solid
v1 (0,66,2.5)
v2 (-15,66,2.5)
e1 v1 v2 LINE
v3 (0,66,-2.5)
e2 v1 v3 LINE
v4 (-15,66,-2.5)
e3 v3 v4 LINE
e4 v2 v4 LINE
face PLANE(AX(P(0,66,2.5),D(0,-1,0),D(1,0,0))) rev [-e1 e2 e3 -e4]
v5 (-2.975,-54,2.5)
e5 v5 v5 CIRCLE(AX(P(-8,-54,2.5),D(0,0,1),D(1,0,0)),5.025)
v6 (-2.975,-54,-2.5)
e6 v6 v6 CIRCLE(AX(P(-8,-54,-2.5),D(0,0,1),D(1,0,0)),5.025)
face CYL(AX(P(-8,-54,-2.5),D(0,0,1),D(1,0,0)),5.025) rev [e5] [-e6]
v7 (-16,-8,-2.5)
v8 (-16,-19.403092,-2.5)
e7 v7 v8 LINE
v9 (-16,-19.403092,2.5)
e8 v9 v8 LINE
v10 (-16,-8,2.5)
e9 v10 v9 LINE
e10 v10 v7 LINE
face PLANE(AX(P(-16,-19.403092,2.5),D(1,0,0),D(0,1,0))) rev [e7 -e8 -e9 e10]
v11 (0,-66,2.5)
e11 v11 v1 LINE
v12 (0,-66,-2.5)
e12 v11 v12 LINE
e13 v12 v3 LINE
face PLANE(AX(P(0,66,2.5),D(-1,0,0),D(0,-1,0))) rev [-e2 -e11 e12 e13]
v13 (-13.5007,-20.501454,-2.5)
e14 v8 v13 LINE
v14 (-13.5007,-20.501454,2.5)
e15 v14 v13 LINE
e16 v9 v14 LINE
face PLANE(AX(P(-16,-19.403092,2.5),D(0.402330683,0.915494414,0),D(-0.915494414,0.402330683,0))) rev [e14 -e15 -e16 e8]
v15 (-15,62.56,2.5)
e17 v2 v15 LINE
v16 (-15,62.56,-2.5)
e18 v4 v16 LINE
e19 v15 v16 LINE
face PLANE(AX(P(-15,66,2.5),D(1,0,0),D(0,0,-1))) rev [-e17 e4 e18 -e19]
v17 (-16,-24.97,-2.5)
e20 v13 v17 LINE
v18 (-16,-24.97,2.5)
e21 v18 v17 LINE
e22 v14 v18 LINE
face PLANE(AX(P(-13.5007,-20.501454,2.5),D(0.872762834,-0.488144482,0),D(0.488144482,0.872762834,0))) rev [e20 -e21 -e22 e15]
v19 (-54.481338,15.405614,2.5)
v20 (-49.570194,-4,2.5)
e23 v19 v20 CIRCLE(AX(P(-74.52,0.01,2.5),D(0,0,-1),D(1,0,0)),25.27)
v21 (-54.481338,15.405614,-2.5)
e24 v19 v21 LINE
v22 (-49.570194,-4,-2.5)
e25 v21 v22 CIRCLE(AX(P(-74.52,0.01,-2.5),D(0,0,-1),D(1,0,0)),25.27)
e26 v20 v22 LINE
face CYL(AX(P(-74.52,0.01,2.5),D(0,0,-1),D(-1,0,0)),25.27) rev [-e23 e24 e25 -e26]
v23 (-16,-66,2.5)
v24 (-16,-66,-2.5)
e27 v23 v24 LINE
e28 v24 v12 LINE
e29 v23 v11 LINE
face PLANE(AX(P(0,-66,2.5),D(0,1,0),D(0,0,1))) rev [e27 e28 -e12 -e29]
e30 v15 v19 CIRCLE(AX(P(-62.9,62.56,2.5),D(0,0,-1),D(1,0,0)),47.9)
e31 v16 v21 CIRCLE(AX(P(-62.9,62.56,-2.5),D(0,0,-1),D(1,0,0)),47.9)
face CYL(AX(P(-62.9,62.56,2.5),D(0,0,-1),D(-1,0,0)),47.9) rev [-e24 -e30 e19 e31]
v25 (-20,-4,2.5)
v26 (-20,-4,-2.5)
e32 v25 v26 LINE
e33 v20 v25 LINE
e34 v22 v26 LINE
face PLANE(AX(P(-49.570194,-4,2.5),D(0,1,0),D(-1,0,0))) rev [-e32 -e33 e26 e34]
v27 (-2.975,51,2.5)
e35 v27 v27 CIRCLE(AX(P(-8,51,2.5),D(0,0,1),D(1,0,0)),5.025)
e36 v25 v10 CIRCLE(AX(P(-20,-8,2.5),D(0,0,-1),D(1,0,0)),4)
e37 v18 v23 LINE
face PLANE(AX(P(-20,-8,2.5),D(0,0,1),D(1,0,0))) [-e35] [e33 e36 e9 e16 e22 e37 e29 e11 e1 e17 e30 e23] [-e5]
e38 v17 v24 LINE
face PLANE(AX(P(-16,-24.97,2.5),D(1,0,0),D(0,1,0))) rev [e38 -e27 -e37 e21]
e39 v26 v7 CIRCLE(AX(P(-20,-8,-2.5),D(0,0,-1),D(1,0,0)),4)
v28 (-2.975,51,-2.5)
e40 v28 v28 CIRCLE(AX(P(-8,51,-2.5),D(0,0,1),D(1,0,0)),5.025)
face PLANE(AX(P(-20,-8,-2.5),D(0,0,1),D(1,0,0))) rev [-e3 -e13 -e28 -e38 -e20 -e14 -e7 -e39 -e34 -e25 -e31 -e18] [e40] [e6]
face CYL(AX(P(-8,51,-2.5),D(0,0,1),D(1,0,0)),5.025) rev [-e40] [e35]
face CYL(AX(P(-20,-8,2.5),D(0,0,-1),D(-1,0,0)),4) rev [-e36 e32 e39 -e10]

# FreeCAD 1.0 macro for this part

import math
import FreeCAD as App
import Part
import Sketcher
Q = App.Units.Quantity

doc = App.newDocument("Part")
body = doc.addObject("PartDesign::Body", "Body")

sketch1 = doc.addObject("Sketcher::SketchObject", "Sketch")
body.addObject(sketch1)
sketch1.AttachmentSupport = (doc.XY_Plane, [""])
sketch1.MapMode = "FlatFace"
sketch1.addGeometry([
    Part.LineSegment(App.Vector(-49.570194, -4, 0), App.Vector(-20, -4, 0)),
    Part.ArcOfCircle(Part.Circle(App.Vector(-20, -8, 0), App.Vector(0, 0, 1), 4), math.radians(0), math.radians(90)),
    Part.LineSegment(App.Vector(-16, -8, 0), App.Vector(-16, -19.403092, 0)),
    Part.LineSegment(App.Vector(-16, -19.403092, 0), App.Vector(-13.5007, -20.501454, 0)),
    Part.LineSegment(App.Vector(-13.5007, -20.501454, 0), App.Vector(-16, -24.97, 0)),
    Part.LineSegment(App.Vector(-16, -24.97, 0), App.Vector(-16, -66, 0)),
    Part.LineSegment(App.Vector(-16, -66, 0), App.Vector(0, -66, 0)),
    Part.LineSegment(App.Vector(0, -66, 0), App.Vector(0, 66, 0)),
    Part.LineSegment(App.Vector(0, 66, 0), App.Vector(-15, 66, 0)),
    Part.LineSegment(App.Vector(-15, 66, 0), App.Vector(-15, 62.56, 0)),
    Part.ArcOfCircle(Part.Circle(App.Vector(-62.9, 62.56, 0), App.Vector(0, 0, 1), 47.9), math.radians(-79.877406), math.radians(0)),
    Part.ArcOfCircle(Part.Circle(App.Vector(-74.52, 0.01, 0), App.Vector(0, 0, 1), 25.27), math.radians(-9.130646), math.radians(37.534911)),
], False)
sketch1.addConstraint([
    Sketcher.Constraint("Tangent", 0, 2, 1, 2),
    Sketcher.Constraint("Tangent", 1, 1, 2, 1),
    Sketcher.Constraint("Coincident", 2, 2, 3, 1),
    Sketcher.Constraint("Coincident", 3, 2, 4, 1),
    Sketcher.Constraint("Coincident", 4, 2, 5, 1),
    Sketcher.Constraint("Coincident", 5, 2, 6, 1),
    Sketcher.Constraint("Coincident", 6, 2, 7, 1),
    Sketcher.Constraint("Coincident", 7, 2, 8, 1),
    Sketcher.Constraint("Coincident", 8, 2, 9, 1),
    Sketcher.Constraint("Tangent", 9, 2, 10, 2),
    Sketcher.Constraint("Coincident", 10, 1, 11, 2),
    Sketcher.Constraint("Coincident", 11, 1, 0, 1),
    Sketcher.Constraint("Horizontal", 0),
    Sketcher.Constraint("Vertical", 2),
    Sketcher.Constraint("Vertical", 5),
    Sketcher.Constraint("Horizontal", 6),
    Sketcher.Constraint("Vertical", 7),
    Sketcher.Constraint("Horizontal", 8),
    Sketcher.Constraint("Vertical", 9),
    Sketcher.Constraint("Symmetric", 6, 2, 7, 2, -1, 1),
    Sketcher.Constraint("Vertical", 2, 2, 4, 2),
    Sketcher.Constraint("Radius", 1, Q("4 mm")),
    Sketcher.Constraint("Radius", 10, Q("47.9 mm")),
    Sketcher.Constraint("DistanceX", 6, 1, 6, 2, Q("16 mm")),
    Sketcher.Constraint("DistanceX", 8, 2, 8, 1, Q("15 mm")),
    Sketcher.Constraint("DistanceY", 7, 1, 7, 2, Q("132 mm")),
    Sketcher.Constraint("Radius", 11, Q("25.27 mm")),
    Sketcher.Constraint("DistanceY", 1, 3, -1, 1, Q("8 mm")),
    Sketcher.Constraint("DistanceY", 5, 2, 5, 1, Q("41.03 mm")),
    Sketcher.Constraint("DistanceY", 9, 2, 9, 1, Q("3.44 mm")),
    Sketcher.Constraint("Distance", 3, Q("2.73 mm")),
    Sketcher.Constraint("Distance", 4, Q("5.12 mm")),
    Sketcher.Constraint("DistanceX", 11, 3, -1, 1, Q("74.52 mm")),
    Sketcher.Constraint("DistanceY", -1, 1, 11, 3, Q("0.01 mm")),
    Sketcher.Constraint("DistanceY", 2, 2, 2, 1, Q("11.403092 mm")),
])
pad1 = doc.addObject("PartDesign::Pad", "Pad")
body.addObject(pad1)
pad1.Profile = sketch1
pad1.Length = 5
pad1.Midplane = True

sketch2 = doc.addObject("Sketcher::SketchObject", "Sketch001")
body.addObject(sketch2)
sketch2.AttachmentSupport = (doc.XY_Plane, [""])
sketch2.MapMode = "FlatFace"
sketch2.AttachmentOffset = App.Placement(App.Vector(0, 0, 2.5), App.Rotation())
sketch2.addGeometry([
    Part.Circle(App.Vector(-8, 51, 0), App.Vector(0, 0, 1), 5.025),
    Part.Circle(App.Vector(-8, -54, 0), App.Vector(0, 0, 1), 5.025),
], False)
sketch2.addConstraint([
    Sketcher.Constraint("Equal", 0, 1),
    Sketcher.Constraint("Vertical", 0, 3, 1, 3),
    Sketcher.Constraint("Diameter", 0, Q("10.05 mm")),
    Sketcher.Constraint("DistanceX", 0, 3, -1, 1, Q("8 mm")),
    Sketcher.Constraint("DistanceY", -1, 1, 0, 3, Q("51 mm")),
    Sketcher.Constraint("DistanceY", 1, 3, -1, 1, Q("54 mm")),
])
pocket1 = doc.addObject("PartDesign::Pocket", "Pocket")
body.addObject(pocket1)
pocket1.Profile = sketch2
pocket1.Type = "ThroughAll"

doc.recompute()
